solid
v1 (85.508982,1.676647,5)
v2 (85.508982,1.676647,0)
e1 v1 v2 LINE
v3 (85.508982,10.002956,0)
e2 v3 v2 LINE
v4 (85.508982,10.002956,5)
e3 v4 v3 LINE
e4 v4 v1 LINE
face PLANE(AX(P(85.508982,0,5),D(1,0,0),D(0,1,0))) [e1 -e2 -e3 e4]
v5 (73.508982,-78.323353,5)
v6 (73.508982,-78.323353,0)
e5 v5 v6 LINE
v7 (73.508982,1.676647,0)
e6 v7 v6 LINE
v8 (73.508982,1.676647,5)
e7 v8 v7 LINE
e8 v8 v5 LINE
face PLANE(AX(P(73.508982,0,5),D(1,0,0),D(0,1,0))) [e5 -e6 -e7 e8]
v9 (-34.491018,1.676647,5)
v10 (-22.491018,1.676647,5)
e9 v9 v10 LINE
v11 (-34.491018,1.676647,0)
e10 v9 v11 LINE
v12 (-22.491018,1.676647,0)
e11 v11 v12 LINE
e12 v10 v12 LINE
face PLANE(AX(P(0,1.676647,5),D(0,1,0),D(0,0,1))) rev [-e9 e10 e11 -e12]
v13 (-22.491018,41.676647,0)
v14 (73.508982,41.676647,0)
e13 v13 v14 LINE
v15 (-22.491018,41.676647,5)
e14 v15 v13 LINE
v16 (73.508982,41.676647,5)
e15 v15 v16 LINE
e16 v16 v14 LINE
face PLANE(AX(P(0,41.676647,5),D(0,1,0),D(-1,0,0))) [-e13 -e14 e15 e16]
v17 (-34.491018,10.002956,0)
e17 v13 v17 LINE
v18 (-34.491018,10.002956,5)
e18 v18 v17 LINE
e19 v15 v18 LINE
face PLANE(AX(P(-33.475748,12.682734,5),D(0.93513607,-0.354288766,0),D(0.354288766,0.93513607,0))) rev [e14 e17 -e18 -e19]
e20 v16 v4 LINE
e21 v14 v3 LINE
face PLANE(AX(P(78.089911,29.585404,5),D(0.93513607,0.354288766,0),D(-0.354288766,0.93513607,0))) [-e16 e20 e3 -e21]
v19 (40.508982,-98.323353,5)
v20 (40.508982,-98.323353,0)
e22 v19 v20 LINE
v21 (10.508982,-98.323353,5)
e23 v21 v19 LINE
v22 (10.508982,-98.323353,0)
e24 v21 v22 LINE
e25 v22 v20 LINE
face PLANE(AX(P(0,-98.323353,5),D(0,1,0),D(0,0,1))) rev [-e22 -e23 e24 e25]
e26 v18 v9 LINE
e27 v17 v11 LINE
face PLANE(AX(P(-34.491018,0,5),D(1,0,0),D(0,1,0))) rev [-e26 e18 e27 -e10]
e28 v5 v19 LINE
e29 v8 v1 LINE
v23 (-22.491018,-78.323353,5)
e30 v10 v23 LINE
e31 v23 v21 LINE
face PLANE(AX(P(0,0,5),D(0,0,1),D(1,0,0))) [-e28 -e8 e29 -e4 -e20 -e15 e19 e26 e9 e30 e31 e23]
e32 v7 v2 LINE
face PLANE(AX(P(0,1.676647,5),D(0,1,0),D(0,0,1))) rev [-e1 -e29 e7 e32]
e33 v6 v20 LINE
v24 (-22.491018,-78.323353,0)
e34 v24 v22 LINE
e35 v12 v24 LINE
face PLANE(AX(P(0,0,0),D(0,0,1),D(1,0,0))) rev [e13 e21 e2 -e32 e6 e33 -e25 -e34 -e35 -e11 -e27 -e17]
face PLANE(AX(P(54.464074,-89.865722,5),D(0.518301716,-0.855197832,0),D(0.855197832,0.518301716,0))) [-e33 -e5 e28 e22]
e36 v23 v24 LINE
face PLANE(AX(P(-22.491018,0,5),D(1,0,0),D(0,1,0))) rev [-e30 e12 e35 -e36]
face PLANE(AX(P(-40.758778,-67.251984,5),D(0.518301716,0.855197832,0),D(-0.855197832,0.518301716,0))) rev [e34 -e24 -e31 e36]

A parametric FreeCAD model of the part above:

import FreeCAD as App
import Part
import Sketcher

V = App.Vector


def add_polygon(sketch, points):
    """Adds a closed chain of lines whose ends are joined by coincident constraints."""
    first, n = sketch.GeometryCount, len(points)
    for a, b in zip(points, points[1:] + points[:1]):
        sketch.addGeometry(Part.LineSegment(App.Vector(*a, 0), App.Vector(*b, 0)), False)
    for i in range(n):
        sketch.addConstraint(Sketcher.Constraint("Coincident", first + i, 2, first + (i + 1) % n, 1))

doc = App.newDocument("Part")
body = doc.addObject("PartDesign::Body", "Body")

# Sketch on XY plane
sketch1 = body.newObject("Sketcher::SketchObject", "Sketch")
sketch1.AttachmentSupport = (doc.getObject("XY_Plane"), [""])
sketch1.MapMode = "FlatFace"
add_polygon(sketch1, [(-22, 42), (-34, 10), (-34, 2), (-22, 2), (-22, -78), (11, -98), (41, -98), (74, -78), (74, 2), (86, 2), (86, 10), (74, 42)])  # lines 0-11
sketch1.addConstraint(Sketcher.Constraint("Vertical", 1))
sketch1.addConstraint(Sketcher.Constraint("Horizontal", 2))
sketch1.addConstraint(Sketcher.Constraint("Vertical", 3))
sketch1.addConstraint(Sketcher.Constraint("Horizontal", 5))
sketch1.addConstraint(Sketcher.Constraint("Vertical", 7))
sketch1.addConstraint(Sketcher.Constraint("Horizontal", 8))
sketch1.addConstraint(Sketcher.Constraint("Vertical", 9))
sketch1.addConstraint(Sketcher.Constraint("Horizontal", 11))
sketch1.addConstraint(Sketcher.Constraint("Horizontal", 3, 2, 6, 2))
sketch1.addConstraint(Sketcher.Constraint("Horizontal", 2, 2, 7, 2))
sketch1.addConstraint(Sketcher.Constraint("Horizontal", 0, 2, 9, 2))
sketch1.addConstraint(Sketcher.Constraint("Vertical", 7, 2, 10, 2))
sketch1.addConstraint(Sketcher.Constraint("Vertical", 3, 2, 11, 2))
sketch1.addConstraint(Sketcher.Constraint("Equal", 2, 8))
sketch1.addConstraint(Sketcher.Constraint("Equal", 4, 6))
sketch1.addConstraint(Sketcher.Constraint("DistanceX", 2, 1, 2, 2, 12.0))
sketch1.addConstraint(Sketcher.Constraint("DistanceX", 5, 1, 5, 2, 30.0))
sketch1.addConstraint(Sketcher.Constraint("DistanceX", 11, 2, 11, 1, 96.0))
sketch1.addConstraint(Sketcher.Constraint("DistanceY", 3, 2, 3, 1, 80.0))
sketch1.addConstraint(Sketcher.Constraint("DistanceY", 4, 2, 3, 2, 20.0))
sketch1.addConstraint(Sketcher.Constraint("DistanceY", 7, 2, 10, 2, 40.0))
sketch1.addConstraint(Sketcher.Constraint("DistanceY", 1, 2, 1, 1, 8.326309))
sketch1.addConstraint(Sketcher.Constraint("DistanceX", 0, 2, -1, 1, 34.491018))
sketch1.addConstraint(Sketcher.Constraint("DistanceY", -1, 1, 0, 2, 10.002956))
pad1 = body.newObject("PartDesign::Pad", "Pad")
pad1.Profile = sketch1
pad1.Length = 5

doc.recompute()
